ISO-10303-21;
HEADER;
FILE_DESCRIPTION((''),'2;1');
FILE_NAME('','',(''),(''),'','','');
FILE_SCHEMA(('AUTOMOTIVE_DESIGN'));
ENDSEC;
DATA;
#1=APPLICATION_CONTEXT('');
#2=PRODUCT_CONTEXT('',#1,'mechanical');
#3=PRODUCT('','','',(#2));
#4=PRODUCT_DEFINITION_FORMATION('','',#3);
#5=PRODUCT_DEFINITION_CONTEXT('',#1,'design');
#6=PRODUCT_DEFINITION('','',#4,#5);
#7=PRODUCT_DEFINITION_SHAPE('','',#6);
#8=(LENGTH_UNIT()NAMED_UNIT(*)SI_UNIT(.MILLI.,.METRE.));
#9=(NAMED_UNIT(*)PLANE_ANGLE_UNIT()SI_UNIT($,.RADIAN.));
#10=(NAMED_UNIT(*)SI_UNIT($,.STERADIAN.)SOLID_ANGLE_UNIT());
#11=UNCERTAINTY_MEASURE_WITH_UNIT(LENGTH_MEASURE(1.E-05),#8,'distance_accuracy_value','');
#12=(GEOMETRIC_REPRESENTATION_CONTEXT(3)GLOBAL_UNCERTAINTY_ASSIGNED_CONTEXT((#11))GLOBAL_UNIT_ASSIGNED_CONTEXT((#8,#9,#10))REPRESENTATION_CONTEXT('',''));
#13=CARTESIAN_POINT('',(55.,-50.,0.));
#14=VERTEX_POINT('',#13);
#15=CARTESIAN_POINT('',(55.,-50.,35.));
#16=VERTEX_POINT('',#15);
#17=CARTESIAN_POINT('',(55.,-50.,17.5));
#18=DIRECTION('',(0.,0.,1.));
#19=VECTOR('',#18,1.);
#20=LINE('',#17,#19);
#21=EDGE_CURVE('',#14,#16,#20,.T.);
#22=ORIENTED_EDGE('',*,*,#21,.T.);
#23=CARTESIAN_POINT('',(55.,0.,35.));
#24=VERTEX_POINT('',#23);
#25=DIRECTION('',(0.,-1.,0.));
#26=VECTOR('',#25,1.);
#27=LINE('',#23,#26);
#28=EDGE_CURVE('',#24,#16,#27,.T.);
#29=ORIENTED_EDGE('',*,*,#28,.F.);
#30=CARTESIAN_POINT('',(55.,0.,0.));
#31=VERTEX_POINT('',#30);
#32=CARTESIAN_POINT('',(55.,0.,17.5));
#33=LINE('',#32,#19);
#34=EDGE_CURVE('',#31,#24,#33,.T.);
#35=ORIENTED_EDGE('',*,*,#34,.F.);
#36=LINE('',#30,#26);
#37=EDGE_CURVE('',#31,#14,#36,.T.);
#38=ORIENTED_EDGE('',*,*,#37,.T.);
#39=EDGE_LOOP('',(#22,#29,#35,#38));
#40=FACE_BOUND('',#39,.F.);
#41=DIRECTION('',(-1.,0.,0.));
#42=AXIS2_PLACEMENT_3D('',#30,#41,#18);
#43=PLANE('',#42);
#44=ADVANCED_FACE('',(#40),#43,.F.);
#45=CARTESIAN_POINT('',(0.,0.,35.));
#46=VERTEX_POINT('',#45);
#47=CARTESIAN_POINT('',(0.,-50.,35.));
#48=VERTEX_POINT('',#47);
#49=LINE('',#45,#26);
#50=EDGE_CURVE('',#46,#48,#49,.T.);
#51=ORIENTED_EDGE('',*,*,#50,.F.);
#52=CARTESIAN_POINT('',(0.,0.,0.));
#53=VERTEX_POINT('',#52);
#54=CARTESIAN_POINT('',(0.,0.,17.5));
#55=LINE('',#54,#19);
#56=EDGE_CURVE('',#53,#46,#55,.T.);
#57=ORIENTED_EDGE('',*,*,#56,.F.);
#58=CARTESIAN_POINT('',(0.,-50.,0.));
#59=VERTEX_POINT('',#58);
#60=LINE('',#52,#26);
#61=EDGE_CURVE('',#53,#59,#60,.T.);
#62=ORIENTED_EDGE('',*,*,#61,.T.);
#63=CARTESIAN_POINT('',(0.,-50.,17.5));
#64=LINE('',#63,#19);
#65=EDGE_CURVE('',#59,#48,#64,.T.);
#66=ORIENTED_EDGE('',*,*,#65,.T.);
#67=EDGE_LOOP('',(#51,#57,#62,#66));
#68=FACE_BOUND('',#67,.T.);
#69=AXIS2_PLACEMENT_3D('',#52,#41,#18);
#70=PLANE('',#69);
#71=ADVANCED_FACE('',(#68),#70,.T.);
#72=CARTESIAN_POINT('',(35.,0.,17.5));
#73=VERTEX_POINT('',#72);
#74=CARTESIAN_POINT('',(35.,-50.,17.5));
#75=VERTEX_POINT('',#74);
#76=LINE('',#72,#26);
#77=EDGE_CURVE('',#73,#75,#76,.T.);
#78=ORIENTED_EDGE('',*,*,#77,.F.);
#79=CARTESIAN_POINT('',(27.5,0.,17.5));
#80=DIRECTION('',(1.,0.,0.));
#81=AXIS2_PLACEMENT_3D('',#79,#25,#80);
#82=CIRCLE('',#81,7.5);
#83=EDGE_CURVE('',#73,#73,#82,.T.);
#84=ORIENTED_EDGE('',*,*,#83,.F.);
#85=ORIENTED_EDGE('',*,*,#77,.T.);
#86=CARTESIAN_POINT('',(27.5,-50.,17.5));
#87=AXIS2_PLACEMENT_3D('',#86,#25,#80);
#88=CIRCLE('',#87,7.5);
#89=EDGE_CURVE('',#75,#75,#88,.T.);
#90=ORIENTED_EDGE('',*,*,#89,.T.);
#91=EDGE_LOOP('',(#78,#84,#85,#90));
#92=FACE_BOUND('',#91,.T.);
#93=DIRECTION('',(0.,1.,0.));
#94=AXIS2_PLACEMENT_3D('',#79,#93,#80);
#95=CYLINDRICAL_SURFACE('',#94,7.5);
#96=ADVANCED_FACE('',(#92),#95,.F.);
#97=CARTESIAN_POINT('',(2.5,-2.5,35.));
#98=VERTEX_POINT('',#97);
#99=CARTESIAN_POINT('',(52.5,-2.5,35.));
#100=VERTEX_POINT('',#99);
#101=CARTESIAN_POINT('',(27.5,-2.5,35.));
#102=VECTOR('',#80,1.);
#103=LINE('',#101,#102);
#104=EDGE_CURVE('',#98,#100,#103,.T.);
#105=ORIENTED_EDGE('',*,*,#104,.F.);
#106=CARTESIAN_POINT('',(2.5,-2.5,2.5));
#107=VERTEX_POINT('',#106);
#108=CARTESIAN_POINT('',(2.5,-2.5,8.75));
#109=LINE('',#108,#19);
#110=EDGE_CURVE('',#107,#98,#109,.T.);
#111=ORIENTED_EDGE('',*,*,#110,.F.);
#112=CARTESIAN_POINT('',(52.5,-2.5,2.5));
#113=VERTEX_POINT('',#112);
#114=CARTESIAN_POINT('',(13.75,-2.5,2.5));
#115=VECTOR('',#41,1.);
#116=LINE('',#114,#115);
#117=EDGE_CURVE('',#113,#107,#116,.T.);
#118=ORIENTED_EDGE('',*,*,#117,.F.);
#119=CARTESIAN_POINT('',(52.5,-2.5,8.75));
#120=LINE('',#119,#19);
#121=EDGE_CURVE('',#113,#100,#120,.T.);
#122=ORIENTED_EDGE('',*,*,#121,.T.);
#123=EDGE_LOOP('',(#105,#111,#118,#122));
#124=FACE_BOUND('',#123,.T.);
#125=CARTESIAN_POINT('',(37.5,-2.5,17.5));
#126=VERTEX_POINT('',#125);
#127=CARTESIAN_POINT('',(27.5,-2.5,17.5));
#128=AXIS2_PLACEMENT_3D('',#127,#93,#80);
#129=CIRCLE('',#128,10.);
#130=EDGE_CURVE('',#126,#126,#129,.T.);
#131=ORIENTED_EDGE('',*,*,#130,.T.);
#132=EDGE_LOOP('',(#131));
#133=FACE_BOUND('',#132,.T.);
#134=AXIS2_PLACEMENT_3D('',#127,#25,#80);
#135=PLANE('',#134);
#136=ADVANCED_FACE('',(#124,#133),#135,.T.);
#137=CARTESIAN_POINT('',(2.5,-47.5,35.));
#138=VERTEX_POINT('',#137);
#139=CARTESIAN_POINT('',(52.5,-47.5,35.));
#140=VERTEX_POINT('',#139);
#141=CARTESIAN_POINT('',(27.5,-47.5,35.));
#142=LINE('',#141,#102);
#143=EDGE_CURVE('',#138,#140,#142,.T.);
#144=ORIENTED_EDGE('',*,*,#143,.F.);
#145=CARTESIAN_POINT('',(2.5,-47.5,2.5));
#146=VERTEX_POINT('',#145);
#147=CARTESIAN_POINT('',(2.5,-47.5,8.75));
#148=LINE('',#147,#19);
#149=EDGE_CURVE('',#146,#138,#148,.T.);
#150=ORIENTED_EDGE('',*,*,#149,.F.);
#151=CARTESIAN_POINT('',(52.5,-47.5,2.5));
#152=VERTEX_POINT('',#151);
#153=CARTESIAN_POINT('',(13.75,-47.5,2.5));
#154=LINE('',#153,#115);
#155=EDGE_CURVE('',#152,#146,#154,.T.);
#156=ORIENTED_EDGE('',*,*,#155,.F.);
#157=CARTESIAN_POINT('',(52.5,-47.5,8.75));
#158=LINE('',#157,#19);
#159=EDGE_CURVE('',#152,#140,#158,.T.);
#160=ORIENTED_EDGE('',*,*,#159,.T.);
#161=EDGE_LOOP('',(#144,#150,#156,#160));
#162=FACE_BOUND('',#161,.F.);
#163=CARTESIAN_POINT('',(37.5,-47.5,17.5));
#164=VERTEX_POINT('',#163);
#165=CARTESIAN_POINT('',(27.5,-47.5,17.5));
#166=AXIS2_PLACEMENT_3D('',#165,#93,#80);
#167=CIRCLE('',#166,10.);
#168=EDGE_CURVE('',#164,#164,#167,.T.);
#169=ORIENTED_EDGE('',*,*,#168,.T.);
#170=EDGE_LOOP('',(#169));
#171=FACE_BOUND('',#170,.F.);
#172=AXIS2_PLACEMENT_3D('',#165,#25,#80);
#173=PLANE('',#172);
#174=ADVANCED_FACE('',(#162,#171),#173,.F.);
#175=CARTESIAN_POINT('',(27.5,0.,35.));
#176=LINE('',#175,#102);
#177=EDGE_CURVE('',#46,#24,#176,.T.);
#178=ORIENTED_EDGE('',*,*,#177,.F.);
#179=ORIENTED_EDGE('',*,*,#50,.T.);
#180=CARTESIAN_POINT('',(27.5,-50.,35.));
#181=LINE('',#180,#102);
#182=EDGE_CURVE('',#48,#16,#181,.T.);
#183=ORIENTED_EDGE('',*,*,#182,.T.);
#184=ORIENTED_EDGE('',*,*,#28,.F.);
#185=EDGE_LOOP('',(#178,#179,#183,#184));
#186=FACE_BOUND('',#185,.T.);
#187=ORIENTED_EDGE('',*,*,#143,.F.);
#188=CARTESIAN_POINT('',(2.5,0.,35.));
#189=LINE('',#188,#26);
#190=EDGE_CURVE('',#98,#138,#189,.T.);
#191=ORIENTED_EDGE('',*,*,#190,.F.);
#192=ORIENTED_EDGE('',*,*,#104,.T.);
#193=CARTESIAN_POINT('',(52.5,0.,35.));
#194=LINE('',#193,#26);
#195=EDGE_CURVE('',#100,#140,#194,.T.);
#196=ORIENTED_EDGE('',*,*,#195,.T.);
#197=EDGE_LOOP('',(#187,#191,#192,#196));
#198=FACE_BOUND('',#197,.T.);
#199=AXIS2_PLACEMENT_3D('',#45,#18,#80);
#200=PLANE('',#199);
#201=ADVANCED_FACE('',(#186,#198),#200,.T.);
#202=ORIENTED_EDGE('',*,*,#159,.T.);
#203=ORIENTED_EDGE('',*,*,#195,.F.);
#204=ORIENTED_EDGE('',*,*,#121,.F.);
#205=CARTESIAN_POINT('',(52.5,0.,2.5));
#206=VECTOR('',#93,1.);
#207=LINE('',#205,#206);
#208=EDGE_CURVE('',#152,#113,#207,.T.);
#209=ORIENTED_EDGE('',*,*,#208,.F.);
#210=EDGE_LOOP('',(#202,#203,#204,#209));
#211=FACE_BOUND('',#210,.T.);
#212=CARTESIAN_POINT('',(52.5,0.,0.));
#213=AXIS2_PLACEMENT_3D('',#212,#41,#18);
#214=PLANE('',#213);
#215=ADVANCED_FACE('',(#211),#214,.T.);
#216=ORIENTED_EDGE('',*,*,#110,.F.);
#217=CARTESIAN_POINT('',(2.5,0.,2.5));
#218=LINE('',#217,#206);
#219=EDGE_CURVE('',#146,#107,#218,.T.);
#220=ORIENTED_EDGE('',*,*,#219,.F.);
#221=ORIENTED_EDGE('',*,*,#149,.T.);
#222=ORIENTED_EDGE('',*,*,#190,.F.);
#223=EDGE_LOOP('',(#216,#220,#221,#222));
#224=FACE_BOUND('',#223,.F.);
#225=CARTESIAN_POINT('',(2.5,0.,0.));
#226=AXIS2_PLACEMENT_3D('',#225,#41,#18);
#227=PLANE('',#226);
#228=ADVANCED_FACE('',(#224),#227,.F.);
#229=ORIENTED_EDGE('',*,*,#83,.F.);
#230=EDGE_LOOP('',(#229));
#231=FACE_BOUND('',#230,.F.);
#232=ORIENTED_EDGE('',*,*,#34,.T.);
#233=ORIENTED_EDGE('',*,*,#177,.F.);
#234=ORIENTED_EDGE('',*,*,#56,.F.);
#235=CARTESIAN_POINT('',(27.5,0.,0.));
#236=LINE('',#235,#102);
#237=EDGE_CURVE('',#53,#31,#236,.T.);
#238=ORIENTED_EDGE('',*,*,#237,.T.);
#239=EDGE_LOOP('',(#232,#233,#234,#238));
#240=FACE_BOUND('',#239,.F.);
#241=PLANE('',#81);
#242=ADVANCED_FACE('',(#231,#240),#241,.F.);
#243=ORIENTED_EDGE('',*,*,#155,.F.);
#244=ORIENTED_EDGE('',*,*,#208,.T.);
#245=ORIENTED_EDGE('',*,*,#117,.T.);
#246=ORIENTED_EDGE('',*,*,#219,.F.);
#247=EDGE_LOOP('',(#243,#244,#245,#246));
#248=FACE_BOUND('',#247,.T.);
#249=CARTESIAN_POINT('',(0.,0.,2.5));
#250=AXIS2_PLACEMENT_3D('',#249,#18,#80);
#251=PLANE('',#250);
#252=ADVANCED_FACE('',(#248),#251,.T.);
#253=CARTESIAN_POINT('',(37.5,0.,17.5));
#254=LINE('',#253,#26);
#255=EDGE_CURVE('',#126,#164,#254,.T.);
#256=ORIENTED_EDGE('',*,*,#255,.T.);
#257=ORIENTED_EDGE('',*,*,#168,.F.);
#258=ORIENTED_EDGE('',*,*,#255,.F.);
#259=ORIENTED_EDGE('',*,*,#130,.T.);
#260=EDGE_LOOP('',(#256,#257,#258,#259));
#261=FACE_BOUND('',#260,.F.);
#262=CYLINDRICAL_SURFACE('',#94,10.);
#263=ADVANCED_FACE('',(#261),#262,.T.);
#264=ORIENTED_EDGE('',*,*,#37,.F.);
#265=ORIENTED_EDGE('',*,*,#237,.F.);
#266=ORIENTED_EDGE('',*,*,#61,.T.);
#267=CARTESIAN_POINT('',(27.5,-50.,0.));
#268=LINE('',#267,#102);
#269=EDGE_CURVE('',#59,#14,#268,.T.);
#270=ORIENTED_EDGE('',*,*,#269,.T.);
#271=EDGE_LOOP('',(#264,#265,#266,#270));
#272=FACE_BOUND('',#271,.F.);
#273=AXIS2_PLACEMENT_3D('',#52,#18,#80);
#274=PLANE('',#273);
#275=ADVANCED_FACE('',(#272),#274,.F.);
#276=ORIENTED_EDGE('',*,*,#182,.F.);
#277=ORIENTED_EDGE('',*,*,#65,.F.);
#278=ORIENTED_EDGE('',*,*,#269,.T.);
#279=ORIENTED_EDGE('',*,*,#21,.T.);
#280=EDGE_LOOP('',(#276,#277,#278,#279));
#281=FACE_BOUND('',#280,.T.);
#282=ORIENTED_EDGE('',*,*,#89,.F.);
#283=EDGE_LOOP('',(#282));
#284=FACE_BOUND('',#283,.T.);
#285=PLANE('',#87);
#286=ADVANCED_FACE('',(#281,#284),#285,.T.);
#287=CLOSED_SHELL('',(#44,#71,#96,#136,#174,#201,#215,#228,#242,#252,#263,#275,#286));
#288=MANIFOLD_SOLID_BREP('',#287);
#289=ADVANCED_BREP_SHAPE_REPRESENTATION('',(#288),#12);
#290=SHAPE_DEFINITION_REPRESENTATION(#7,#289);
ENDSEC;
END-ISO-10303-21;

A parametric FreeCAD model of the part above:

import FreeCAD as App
import Part
import Sketcher

V = App.Vector


def faces_at(feature, points):
    """Names of the faces that lie closest to the given points."""
    faces = feature.Shape.Faces
    near = lambda p: min(range(len(faces)), key=lambda i: faces[i].distToShape(Part.Vertex(*p))[0])
    return sorted({f"Face{near(p) + 1}" for p in points})

doc = App.newDocument("Part")
params = doc.addObject("Spreadsheet::Sheet", "Params")
for row, (alias, value) in enumerate([
    ("sketch1_diameter", "15 mm"),
    ("sketch1_width", "55 mm"),
    ("sketch1_height", "35 mm"),
    ("pad1_length", "50 mm"),
    ("thickness_wall", "2.5 mm"),
], start=1):
    params.set(f"A{row}", alias)
    params.set(f"B{row}", "=" + value)
    params.setAlias(f"B{row}", alias)

body = doc.addObject("PartDesign::Body", "Body")

sketch1 = body.newObject("Sketcher::SketchObject", "Sketch")
sketch1.AttachmentSupport = (doc.getObject("XZ_Plane"), [""])
sketch1.MapMode = "FlatFace"
sketch1.addGeometry(Part.LineSegment(V(0, 35, 0), V(0, 0, 0)), False)
sketch1.addGeometry(Part.LineSegment(V(0, 0, 0), V(55, 0, 0)), False)
sketch1.addGeometry(Part.LineSegment(V(55, 0, 0), V(55, 35, 0)), False)
sketch1.addGeometry(Part.LineSegment(V(55, 35, 0), V(0, 35, 0)), False)
sketch1.addGeometry(Part.Circle(V(28, 18, 0), V(0, 0, 1), 8), False)
sketch1.addConstraint(Sketcher.Constraint("Coincident", 0, 2, 1, 1))
sketch1.addConstraint(Sketcher.Constraint("Coincident", 1, 2, 2, 1))
sketch1.addConstraint(Sketcher.Constraint("Coincident", 2, 2, 3, 1))
sketch1.addConstraint(Sketcher.Constraint("Coincident", 3, 2, 0, 1))
sketch1.addConstraint(Sketcher.Constraint("Vertical", 0))
sketch1.addConstraint(Sketcher.Constraint("Horizontal", 1))
sketch1.addConstraint(Sketcher.Constraint("Vertical", 2))
sketch1.addConstraint(Sketcher.Constraint("Horizontal", 3))
sketch1.addConstraint(Sketcher.Constraint("Coincident", 0, 2, -1, 1))
sketch1.addConstraint(Sketcher.Constraint("Diameter", 4, 15.0))
sketch1.addConstraint(Sketcher.Constraint("DistanceX", 1, 1, 1, 2, 55.0))
sketch1.addConstraint(Sketcher.Constraint("DistanceY", 0, 2, 0, 1, 35.0))
sketch1.addConstraint(Sketcher.Constraint("DistanceX", -1, 1, 4, 3, 27.5))
sketch1.addConstraint(Sketcher.Constraint("DistanceY", -1, 1, 4, 3, 17.5))
sketch1.setExpression("Constraints[9]", "Params.sketch1_diameter")
sketch1.setExpression("Constraints[10]", "Params.sketch1_width")
sketch1.setExpression("Constraints[11]", "Params.sketch1_height")
pad1 = body.newObject("PartDesign::Pad", "Pad")
pad1.Profile = sketch1
pad1.setExpression("Length", "Params.pad1_length")
doc.recompute()

thickness = body.newObject("PartDesign::Thickness", "Thickness")
thickness.Base = (pad1, faces_at(pad1, [(27.5, -25, 35)]))
thickness.setExpression("Value", "Params.thickness_wall")
thickness.Reversed = True
thickness.Join = "Arc"

doc.recompute()
